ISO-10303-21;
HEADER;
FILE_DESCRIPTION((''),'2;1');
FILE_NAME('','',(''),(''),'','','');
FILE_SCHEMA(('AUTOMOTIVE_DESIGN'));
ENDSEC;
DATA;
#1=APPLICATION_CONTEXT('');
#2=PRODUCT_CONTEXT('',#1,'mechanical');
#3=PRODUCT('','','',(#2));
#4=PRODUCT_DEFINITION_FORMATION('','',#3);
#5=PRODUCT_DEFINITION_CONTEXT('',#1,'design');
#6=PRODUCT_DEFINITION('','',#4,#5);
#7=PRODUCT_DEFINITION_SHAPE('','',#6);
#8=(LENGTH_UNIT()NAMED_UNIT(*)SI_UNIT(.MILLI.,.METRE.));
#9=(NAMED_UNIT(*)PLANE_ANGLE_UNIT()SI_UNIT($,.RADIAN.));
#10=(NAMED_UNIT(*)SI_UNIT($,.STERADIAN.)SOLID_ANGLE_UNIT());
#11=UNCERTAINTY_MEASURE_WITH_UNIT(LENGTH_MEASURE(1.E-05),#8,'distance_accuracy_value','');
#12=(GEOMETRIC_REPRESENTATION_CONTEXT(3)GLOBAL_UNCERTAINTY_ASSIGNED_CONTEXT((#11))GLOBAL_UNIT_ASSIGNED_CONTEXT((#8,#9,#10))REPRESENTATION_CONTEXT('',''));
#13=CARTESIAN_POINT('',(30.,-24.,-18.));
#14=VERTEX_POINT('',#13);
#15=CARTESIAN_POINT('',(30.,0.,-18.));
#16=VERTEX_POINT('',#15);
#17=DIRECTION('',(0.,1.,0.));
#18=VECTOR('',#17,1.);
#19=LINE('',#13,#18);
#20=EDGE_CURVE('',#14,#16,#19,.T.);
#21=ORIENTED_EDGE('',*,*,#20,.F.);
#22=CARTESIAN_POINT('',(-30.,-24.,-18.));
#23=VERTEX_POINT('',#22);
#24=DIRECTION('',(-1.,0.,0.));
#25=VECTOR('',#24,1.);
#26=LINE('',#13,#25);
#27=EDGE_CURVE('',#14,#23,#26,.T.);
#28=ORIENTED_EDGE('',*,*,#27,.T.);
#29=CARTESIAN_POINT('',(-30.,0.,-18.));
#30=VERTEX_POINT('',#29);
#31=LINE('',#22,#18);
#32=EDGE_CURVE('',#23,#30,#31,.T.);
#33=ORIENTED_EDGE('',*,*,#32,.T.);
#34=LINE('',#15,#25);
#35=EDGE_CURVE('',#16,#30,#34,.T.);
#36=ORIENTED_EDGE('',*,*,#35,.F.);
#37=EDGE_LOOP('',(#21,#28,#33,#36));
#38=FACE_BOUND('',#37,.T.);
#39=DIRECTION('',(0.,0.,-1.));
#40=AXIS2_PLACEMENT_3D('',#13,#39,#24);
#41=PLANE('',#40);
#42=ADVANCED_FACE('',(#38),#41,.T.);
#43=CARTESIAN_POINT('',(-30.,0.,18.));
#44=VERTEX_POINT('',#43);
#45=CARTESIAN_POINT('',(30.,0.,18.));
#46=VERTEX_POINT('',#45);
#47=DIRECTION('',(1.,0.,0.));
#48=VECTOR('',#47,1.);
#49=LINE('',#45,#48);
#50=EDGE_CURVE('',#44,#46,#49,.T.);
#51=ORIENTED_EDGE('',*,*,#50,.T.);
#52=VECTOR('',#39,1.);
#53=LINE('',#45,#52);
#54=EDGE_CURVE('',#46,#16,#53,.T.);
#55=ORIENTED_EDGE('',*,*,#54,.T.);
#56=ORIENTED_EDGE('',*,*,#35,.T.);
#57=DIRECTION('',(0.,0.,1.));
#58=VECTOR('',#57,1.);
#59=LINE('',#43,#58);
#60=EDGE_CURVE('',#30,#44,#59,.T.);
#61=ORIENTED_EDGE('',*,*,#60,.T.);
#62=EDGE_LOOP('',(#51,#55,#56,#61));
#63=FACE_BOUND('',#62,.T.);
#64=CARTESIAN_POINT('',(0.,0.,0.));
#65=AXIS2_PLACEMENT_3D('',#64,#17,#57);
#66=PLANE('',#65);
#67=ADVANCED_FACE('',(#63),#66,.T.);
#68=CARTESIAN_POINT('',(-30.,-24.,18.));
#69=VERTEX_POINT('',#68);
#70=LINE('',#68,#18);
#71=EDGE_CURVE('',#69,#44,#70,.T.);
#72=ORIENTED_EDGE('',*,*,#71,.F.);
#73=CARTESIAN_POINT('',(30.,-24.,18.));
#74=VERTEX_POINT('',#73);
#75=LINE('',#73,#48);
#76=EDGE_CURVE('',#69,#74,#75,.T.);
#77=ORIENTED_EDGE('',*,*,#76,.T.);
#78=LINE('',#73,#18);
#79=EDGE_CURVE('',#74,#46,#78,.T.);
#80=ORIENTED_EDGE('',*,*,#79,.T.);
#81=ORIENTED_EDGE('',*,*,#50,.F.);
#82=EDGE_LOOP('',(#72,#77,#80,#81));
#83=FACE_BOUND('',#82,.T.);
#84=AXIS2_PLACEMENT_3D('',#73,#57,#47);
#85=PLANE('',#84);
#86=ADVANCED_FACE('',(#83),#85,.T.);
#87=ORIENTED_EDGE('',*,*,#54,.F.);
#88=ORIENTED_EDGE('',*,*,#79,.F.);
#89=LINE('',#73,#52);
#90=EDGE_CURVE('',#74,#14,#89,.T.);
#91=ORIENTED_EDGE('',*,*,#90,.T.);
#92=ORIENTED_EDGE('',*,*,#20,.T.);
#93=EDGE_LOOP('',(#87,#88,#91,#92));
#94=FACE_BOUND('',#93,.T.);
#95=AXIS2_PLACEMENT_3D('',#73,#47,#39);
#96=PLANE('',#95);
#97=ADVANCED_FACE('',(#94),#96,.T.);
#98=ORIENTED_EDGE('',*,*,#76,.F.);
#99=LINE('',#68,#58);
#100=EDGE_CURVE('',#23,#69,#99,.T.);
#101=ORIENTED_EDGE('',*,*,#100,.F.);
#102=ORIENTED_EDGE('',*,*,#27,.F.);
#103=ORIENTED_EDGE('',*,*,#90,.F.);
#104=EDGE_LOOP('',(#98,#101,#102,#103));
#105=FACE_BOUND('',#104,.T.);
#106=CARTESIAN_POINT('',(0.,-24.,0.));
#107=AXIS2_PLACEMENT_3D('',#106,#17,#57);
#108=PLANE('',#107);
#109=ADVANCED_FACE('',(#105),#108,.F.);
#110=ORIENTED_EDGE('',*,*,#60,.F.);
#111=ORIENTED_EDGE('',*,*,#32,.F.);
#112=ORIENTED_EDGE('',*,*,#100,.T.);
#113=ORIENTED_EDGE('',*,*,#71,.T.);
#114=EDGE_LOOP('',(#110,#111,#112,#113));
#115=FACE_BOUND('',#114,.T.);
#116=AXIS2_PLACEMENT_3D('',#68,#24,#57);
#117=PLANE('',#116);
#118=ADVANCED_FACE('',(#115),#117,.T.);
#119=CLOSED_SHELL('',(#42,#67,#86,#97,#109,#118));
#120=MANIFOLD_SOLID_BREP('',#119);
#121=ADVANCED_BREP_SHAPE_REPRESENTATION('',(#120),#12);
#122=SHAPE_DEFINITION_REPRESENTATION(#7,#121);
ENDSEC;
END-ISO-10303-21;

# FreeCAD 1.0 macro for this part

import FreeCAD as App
import Part
import Sketcher
from FreeCAD import Vector

doc = App.newDocument("Part")
body = doc.addObject("PartDesign::Body", "Body")

sketch1 = body.newObject("Sketcher::SketchObject", "Sketch")
sketch1.AttachmentSupport = (doc.getObject("XZ_Plane"), [""])
sketch1.MapMode = "FlatFace"
sketch1.addGeometry(Part.LineSegment(Vector(-30, -18, 0), Vector(-30, 18, 0)), False)
sketch1.addGeometry(Part.LineSegment(Vector(-30, 18, 0), Vector(30, 18, 0)), False)
sketch1.addGeometry(Part.LineSegment(Vector(30, 18, 0), Vector(30, -18, 0)), False)
sketch1.addGeometry(Part.LineSegment(Vector(30, -18, 0), Vector(-30, -18, 0)), False)
sketch1.addConstraint(Sketcher.Constraint("Coincident", 0, 2, 1, 1))
sketch1.addConstraint(Sketcher.Constraint("Coincident", 1, 2, 2, 1))
sketch1.addConstraint(Sketcher.Constraint("Coincident", 2, 2, 3, 1))
sketch1.addConstraint(Sketcher.Constraint("Coincident", 3, 2, 0, 1))
sketch1.addConstraint(Sketcher.Constraint("Vertical", 0))
sketch1.addConstraint(Sketcher.Constraint("Horizontal", 1))
sketch1.addConstraint(Sketcher.Constraint("Vertical", 2))
sketch1.addConstraint(Sketcher.Constraint("Horizontal", 3))
sketch1.addConstraint(Sketcher.Constraint("Symmetric", 0, 2, 2, 2, -1, 1))
sketch1.addConstraint(Sketcher.Constraint("DistanceX", 1, 1, 1, 2, 60.0))
sketch1.addConstraint(Sketcher.Constraint("DistanceY", 0, 1, 0, 2, 36.0))
pad1 = body.newObject("PartDesign::Pad", "Pad")
pad1.Profile = sketch1
pad1.Length = 24

doc.recompute()
